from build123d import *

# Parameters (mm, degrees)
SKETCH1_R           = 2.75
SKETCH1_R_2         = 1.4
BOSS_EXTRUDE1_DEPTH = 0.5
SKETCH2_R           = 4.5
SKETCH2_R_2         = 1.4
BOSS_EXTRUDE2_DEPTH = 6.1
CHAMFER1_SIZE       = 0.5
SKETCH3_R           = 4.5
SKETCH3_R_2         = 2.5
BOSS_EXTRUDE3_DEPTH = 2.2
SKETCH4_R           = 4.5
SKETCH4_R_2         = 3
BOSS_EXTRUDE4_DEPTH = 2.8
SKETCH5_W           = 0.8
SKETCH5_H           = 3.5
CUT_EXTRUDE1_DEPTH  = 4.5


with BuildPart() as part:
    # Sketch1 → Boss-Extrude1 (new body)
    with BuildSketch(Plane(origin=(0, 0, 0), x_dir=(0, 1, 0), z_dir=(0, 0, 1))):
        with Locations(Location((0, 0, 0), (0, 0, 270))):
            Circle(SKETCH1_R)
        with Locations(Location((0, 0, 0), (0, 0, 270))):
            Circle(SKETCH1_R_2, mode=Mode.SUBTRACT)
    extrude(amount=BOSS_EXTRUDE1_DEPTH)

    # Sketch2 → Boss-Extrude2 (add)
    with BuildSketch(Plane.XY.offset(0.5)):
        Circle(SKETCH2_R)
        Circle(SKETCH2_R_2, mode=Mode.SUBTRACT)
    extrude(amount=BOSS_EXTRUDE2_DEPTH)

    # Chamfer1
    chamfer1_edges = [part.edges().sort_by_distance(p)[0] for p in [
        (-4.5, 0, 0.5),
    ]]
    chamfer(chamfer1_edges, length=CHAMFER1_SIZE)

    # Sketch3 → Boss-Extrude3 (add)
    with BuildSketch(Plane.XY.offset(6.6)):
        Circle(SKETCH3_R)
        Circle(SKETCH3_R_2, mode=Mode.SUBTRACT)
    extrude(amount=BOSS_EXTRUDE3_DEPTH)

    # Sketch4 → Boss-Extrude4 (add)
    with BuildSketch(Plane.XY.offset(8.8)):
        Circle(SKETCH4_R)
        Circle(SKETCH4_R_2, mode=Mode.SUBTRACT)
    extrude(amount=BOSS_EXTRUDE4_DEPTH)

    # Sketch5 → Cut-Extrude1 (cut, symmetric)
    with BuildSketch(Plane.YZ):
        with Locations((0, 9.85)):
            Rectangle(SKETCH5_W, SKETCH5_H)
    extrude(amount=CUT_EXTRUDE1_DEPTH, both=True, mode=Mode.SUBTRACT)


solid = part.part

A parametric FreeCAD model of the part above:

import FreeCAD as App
import Part
import Sketcher

V = App.Vector


def edges_at(feature, points):
    """Names of the edges that pass closest to the given points."""
    edges = feature.Shape.Edges
    near = lambda p: min(range(len(edges)), key=lambda i: edges[i].distToShape(Part.Vertex(*p))[0])
    return sorted({f"Edge{near(p) + 1}" for p in points})


def add_polygon(sketch, points):
    """Adds a closed chain of lines whose ends are joined by coincident constraints."""
    first, n = sketch.GeometryCount, len(points)
    for a, b in zip(points, points[1:] + points[:1]):
        sketch.addGeometry(Part.LineSegment(App.Vector(*a, 0), App.Vector(*b, 0)), False)
    for i in range(n):
        sketch.addConstraint(Sketcher.Constraint("Coincident", first + i, 2, first + (i + 1) % n, 1))

doc = App.newDocument("Part")
body = doc.addObject("PartDesign::Body", "Body")

# Sketch on XY plane
sketch1 = body.newObject("Sketcher::SketchObject", "Sketch")
sketch1.AttachmentSupport = (doc.getObject("XY_Plane"), [""])
sketch1.MapMode = "FlatFace"
sketch1.addGeometry([
    Part.Circle(V(0, 0, 0), V(0, 0, 1), 2.75),
    Part.Circle(V(0, 0, 0), V(0, 0, 1), 1.4),
], False)
sketch1.addConstraint([
    Sketcher.Constraint("Coincident", 0, 3, -1, 1),
    Sketcher.Constraint("Coincident", 1, 3, -1, 1),
    Sketcher.Constraint("Diameter", 0, 5.5),
    Sketcher.Constraint("Diameter", 1, 2.8),
])
pad1 = body.newObject("PartDesign::Pad", "Pad")
pad1.Profile = sketch1
pad1.Length = 0.5

# Sketch on XY plane
sketch2 = body.newObject("Sketcher::SketchObject", "Sketch001")
sketch2.AttachmentSupport = (doc.getObject("XY_Plane"), [""])
sketch2.MapMode = "FlatFace"
sketch2.AttachmentOffset = App.Placement(V(0, 0, 0.5), App.Rotation())
sketch2.addGeometry([
    Part.Circle(V(0, 0, 0), V(0, 0, 1), 4.5),
    Part.Circle(V(0, 0, 0), V(0, 0, 1), 1.4),
], False)
sketch2.addConstraint([
    Sketcher.Constraint("Coincident", 0, 3, -1, 1),
    Sketcher.Constraint("Coincident", 1, 3, -1, 1),
    Sketcher.Constraint("Diameter", 0, 9.0),
    Sketcher.Constraint("Diameter", 1, 2.8),
])
pad2 = body.newObject("PartDesign::Pad", "Pad001")
pad2.Profile = sketch2
pad2.Length = 6.1
doc.recompute()

chamfer = body.newObject("PartDesign::Chamfer", "Chamfer")
chamfer.Base = (pad2, edges_at(pad2, [(-4.5, 0, 0.5)]))
chamfer.Size = 0.5

# Sketch on XY plane
sketch3 = body.newObject("Sketcher::SketchObject", "Sketch002")
sketch3.AttachmentSupport = (doc.getObject("XY_Plane"), [""])
sketch3.MapMode = "FlatFace"
sketch3.AttachmentOffset = App.Placement(V(0, 0, 6.6), App.Rotation())
sketch3.addGeometry([
    Part.Circle(V(0, 0, 0), V(0, 0, 1), 4.5),
    Part.Circle(V(0, 0, 0), V(0, 0, 1), 2.5),
], False)
sketch3.addConstraint([
    Sketcher.Constraint("Coincident", 0, 3, -1, 1),
    Sketcher.Constraint("Coincident", 1, 3, -1, 1),
    Sketcher.Constraint("Diameter", 0, 9.0),
    Sketcher.Constraint("Diameter", 1, 5.0),
])
pad3 = body.newObject("PartDesign::Pad", "Pad002")
pad3.Profile = sketch3
pad3.Length = 2.2

# Sketch on XY plane
sketch4 = body.newObject("Sketcher::SketchObject", "Sketch003")
sketch4.AttachmentSupport = (doc.getObject("XY_Plane"), [""])
sketch4.MapMode = "FlatFace"
sketch4.AttachmentOffset = App.Placement(V(0, 0, 8.8), App.Rotation())
sketch4.addGeometry([
    Part.Circle(V(0, 0, 0), V(0, 0, 1), 4.5),
    Part.Circle(V(0, 0, 0), V(0, 0, 1), 3),
], False)
sketch4.addConstraint([
    Sketcher.Constraint("Coincident", 0, 3, -1, 1),
    Sketcher.Constraint("Coincident", 1, 3, -1, 1),
    Sketcher.Constraint("Diameter", 0, 9.0),
    Sketcher.Constraint("Diameter", 1, 6.0),
])
pad4 = body.newObject("PartDesign::Pad", "Pad003")
pad4.Profile = sketch4
pad4.Length = 2.8

# Sketch on YZ plane
sketch5 = body.newObject("Sketcher::SketchObject", "Sketch004")
sketch5.AttachmentSupport = (doc.getObject("YZ_Plane"), [""])
sketch5.MapMode = "FlatFace"
add_polygon(sketch5, [(-0.4, 11.6), (-0.4, 8.1), (0.4, 8.1), (0.4, 11.6)])  # lines 0-3
sketch5.addConstraint([
    Sketcher.Constraint("Vertical", 0),
    Sketcher.Constraint("Horizontal", 1),
    Sketcher.Constraint("Vertical", 2),
    Sketcher.Constraint("Horizontal", 3),
    Sketcher.Constraint("DistanceX", 1, 1, 1, 2, 0.8),
    Sketcher.Constraint("DistanceY", 0, 2, 0, 1, 3.5),
    Sketcher.Constraint("DistanceX", 0, 2, -1, 1, 0.4),
    Sketcher.Constraint("DistanceY", -1, 1, 0, 2, 8.1),
])
pocket1 = body.newObject("PartDesign::Pocket", "Pocket")
pocket1.Profile = sketch5
pocket1.Length = 9
pocket1.Midplane = True

doc.recompute()
